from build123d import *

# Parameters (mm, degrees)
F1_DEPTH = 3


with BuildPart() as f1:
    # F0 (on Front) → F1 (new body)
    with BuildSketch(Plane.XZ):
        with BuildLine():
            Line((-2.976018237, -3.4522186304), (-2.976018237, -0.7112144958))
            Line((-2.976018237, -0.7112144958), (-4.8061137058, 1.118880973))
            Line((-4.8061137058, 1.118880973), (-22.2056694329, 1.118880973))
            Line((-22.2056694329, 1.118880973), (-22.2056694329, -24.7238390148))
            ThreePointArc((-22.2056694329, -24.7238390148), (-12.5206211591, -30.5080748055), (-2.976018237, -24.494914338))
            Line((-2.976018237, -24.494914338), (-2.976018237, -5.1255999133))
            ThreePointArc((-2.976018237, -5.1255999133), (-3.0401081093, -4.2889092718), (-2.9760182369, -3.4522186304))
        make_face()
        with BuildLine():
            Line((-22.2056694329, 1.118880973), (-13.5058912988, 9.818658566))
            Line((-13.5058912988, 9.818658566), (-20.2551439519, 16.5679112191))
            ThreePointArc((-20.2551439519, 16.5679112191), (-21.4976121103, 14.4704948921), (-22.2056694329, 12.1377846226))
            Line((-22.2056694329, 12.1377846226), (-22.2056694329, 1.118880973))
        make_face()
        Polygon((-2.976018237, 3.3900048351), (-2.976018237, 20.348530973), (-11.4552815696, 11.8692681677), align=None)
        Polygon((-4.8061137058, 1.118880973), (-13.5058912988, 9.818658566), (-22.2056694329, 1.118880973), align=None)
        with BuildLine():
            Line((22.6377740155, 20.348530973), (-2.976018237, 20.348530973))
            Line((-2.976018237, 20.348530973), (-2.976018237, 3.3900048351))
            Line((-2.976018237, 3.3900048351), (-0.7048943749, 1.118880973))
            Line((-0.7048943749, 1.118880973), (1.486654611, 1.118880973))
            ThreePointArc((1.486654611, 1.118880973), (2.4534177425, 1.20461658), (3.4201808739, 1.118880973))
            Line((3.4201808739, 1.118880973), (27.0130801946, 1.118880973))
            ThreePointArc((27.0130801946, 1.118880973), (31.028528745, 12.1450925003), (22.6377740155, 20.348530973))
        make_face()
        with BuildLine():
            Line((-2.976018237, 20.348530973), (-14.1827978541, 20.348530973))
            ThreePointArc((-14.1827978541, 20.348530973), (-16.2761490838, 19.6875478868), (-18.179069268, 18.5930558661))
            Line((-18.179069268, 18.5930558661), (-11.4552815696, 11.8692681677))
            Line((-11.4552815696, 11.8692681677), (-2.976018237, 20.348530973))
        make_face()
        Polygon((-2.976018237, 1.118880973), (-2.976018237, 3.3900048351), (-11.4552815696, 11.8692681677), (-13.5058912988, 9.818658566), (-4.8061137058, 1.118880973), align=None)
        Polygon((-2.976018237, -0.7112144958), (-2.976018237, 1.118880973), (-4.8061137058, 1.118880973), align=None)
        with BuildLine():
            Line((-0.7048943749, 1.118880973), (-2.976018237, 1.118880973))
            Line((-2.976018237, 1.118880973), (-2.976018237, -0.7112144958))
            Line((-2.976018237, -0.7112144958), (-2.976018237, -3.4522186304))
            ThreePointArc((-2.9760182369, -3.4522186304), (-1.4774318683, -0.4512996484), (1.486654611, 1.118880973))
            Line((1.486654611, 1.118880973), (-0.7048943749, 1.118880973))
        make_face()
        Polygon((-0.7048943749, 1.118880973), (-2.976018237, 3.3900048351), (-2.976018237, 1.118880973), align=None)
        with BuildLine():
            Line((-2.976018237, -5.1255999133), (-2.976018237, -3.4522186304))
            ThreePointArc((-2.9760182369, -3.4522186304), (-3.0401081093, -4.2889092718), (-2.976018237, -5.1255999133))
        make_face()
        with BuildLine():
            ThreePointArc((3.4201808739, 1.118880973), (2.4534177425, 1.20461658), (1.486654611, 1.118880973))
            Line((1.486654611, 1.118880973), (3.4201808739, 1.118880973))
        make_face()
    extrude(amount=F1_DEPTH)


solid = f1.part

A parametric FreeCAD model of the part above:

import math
import FreeCAD as App
import Part
import Sketcher
Q = App.Units.Quantity

doc = App.newDocument("Part")
body = doc.addObject("PartDesign::Body", "Body")

sketch1 = body.newObject("Sketcher::SketchObject", "Sketch")
sketch1.AttachmentSupport = (doc.getObject("XZ_Plane"), [""])
sketch1.MapMode = "FlatFace"
sketch1.addGeometry(Part.ArcOfCircle(Part.Circle(App.Vector(20.475475, 9.743965, 0), App.Vector(0, 0, 1), 10.82277), math.radians(-52.838752), math.radians(78.475225)), False)
sketch1.addGeometry(Part.LineSegment(App.Vector(22.637774, 20.348531, 0), App.Vector(-14.182798, 20.348531, 0)), False)
sketch1.addGeometry(Part.ArcOfCircle(Part.Circle(App.Vector(-12.182861, 10.369334, 0), App.Vector(0, 0, 1), 10.177628), math.radians(101.332554), math.radians(126.097125)), False)
sketch1.addGeometry(Part.LineSegment(App.Vector(-18.179069, 18.593056, 0), App.Vector(-11.455282, 11.869268, 0)), False)
sketch1.addGeometry(Part.LineSegment(App.Vector(-11.455282, 11.869268, 0), App.Vector(-13.505891, 9.818659, 0)), False)
sketch1.addGeometry(Part.LineSegment(App.Vector(-13.505891, 9.818659, 0), App.Vector(-20.255144, 16.567911, 0)), False)
sketch1.addGeometry(Part.ArcOfCircle(Part.Circle(App.Vector(-12.182861, 10.369334, 0), App.Vector(0, 0, 1), 10.177628), math.radians(142.47992), math.radians(169.993577)), False)
sketch1.addGeometry(Part.LineSegment(App.Vector(-22.205669, 12.137785, 0), App.Vector(-22.205669, -24.723839, 0)), False)
sketch1.addGeometry(Part.ArcOfCircle(Part.Circle(App.Vector(-12.649019, -19.722686, 0), App.Vector(0, 0, 1), 10.786154), math.radians(-152.376193), math.radians(-26.259685)), False)
sketch1.addGeometry(Part.LineSegment(App.Vector(-2.976018, -24.494914, 0), App.Vector(-2.976018, -3.452219, 0)), False)
sketch1.addGeometry(Part.ArcOfCircle(Part.Circle(App.Vector(2.453418, -4.288909, 0), App.Vector(0, 0, 1), 5.493526), math.radians(100.135825), math.radians(171.23948)), False)
sketch1.addGeometry(Part.LineSegment(App.Vector(1.486655, 1.118881, 0), App.Vector(27.01308, 1.118881, 0)), False)
sketch1.addConstraint(Sketcher.Constraint("Coincident", 0, 2, 1, 1))
sketch1.addConstraint(Sketcher.Constraint("Coincident", 1, 2, 2, 1))
sketch1.addConstraint(Sketcher.Constraint("Coincident", 2, 2, 3, 1))
sketch1.addConstraint(Sketcher.Constraint("Coincident", 3, 2, 4, 1))
sketch1.addConstraint(Sketcher.Constraint("Coincident", 4, 2, 5, 1))
sketch1.addConstraint(Sketcher.Constraint("Coincident", 5, 2, 6, 1))
sketch1.addConstraint(Sketcher.Constraint("Coincident", 6, 2, 7, 1))
sketch1.addConstraint(Sketcher.Constraint("Coincident", 7, 2, 8, 1))
sketch1.addConstraint(Sketcher.Constraint("Coincident", 8, 2, 9, 1))
sketch1.addConstraint(Sketcher.Constraint("Coincident", 9, 2, 10, 2))
sketch1.addConstraint(Sketcher.Constraint("Coincident", 10, 1, 11, 1))
sketch1.addConstraint(Sketcher.Constraint("Coincident", 11, 2, 0, 1))
sketch1.addConstraint(Sketcher.Constraint("Horizontal", 1))
sketch1.addConstraint(Sketcher.Constraint("Vertical", 7))
sketch1.addConstraint(Sketcher.Constraint("Vertical", 9))
sketch1.addConstraint(Sketcher.Constraint("Horizontal", 11))
sketch1.addConstraint(Sketcher.Constraint("Coincident", 6, 3, 2, 3))
sketch1.addConstraint(Sketcher.Constraint("Equal", 2, 6))
sketch1.addConstraint(Sketcher.Constraint("Perpendicular", 3, 4))
sketch1.addConstraint(Sketcher.Constraint("Perpendicular", 4, 5))
sketch1.addConstraint(Sketcher.Constraint("Angle", 3, Q("-45 deg")))
sketch1.addConstraint(Sketcher.Constraint("Distance", 4, Q("2.9 mm")))
sketch1.addConstraint(Sketcher.Constraint("Radius", 0, Q("10.82277 mm")))
sketch1.addConstraint(Sketcher.Constraint("Radius", 2, Q("10.177628 mm")))
sketch1.addConstraint(Sketcher.Constraint("Radius", 8, Q("10.786154 mm")))
sketch1.addConstraint(Sketcher.Constraint("Radius", 10, Q("5.493526 mm")))
sketch1.addConstraint(Sketcher.Constraint("DistanceX", 8, 3, 8, 2, Q("9.673001 mm")))
sketch1.addConstraint(Sketcher.Constraint("DistanceX", 1, 2, 1, 1, Q("36.820572 mm")))
sketch1.addConstraint(Sketcher.Constraint("DistanceX", 0, 3, 0, 2, Q("2.162299 mm")))
sketch1.addConstraint(Sketcher.Constraint("DistanceX", 3, 2, 10, 3, Q("13.908699 mm")))
sketch1.addConstraint(Sketcher.Constraint("DistanceX", 6, 2, 2, 2, Q("4.0266 mm")))
sketch1.addConstraint(Sketcher.Constraint("DistanceY", 9, 2, 10, 1, Q("4.5711 mm")))
sketch1.addConstraint(Sketcher.Constraint("DistanceX", 9, 2, 11, 2, Q("29.989098 mm")))
sketch1.addConstraint(Sketcher.Constraint("Distance", 3, Q("9.508872 mm")))
sketch1.addConstraint(Sketcher.Constraint("DistanceX", 11, 1, 11, 2, Q("25.526426 mm")))
sketch1.addConstraint(Sketcher.Constraint("DistanceY", 7, 2, 7, 1, Q("36.861624 mm")))
sketch1.addConstraint(Sketcher.Constraint("DistanceY", 9, 1, 9, 2, Q("21.042696 mm")))
sketch1.addConstraint(Sketcher.Constraint("DistanceX", 2, 3, -1, 1, Q("12.182861 mm")))
sketch1.addConstraint(Sketcher.Constraint("DistanceX", 8, 3, -1, 1, Q("12.649019 mm")))
sketch1.addConstraint(Sketcher.Constraint("DistanceY", 10, 3, -1, 1, Q("4.288909 mm")))
pad1 = body.newObject("PartDesign::Pad", "Pad")
pad1.Profile = sketch1
pad1.Length = 3

doc.recompute()
